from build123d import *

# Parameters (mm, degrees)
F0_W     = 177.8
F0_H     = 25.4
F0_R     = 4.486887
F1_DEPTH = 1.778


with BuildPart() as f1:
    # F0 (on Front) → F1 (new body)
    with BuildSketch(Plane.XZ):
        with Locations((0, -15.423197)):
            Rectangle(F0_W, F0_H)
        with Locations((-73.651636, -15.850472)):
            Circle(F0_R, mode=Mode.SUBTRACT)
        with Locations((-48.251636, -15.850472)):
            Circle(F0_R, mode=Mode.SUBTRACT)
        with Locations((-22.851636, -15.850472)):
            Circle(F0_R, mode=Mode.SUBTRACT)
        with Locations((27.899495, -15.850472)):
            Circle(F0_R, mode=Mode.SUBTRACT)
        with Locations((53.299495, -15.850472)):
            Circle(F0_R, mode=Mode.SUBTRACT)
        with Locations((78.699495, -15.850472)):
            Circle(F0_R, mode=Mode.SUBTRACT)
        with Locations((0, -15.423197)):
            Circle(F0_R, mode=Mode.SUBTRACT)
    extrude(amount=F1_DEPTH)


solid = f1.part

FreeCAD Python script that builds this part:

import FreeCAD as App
import Part
import Sketcher

V = App.Vector
Q = App.Units.Quantity

doc = App.newDocument("Part")
body = doc.addObject("PartDesign::Body", "Body")

sketch1 = doc.addObject("Sketcher::SketchObject", "Sketch")
body.addObject(sketch1)
sketch1.AttachmentSupport = (doc.XZ_Plane, [""])
sketch1.MapMode = "FlatFace"
sketch1.addGeometry([
    Part.LineSegment(V(-88.9, -2.723197, 0), V(-88.9, -28.123197, 0)),
    Part.LineSegment(V(-88.9, -28.123197, 0), V(88.9, -28.123197, 0)),
    Part.LineSegment(V(88.9, -28.123197, 0), V(88.9, -2.723197, 0)),
    Part.LineSegment(V(88.9, -2.723197, 0), V(-88.9, -2.723197, 0)),
    Part.Circle(V(-73.651636, -15.850472, 0), V(0, 0, 1), 4.486887),
    Part.Circle(V(-48.251636, -15.850472, 0), V(0, 0, 1), 4.486887),
    Part.Circle(V(-22.851636, -15.850472, 0), V(0, 0, 1), 4.486887),
    Part.Circle(V(27.899495, -15.850472, 0), V(0, 0, 1), 4.486887),
    Part.Circle(V(53.299495, -15.850472, 0), V(0, 0, 1), 4.486887),
    Part.Circle(V(78.699495, -15.850472, 0), V(0, 0, 1), 4.486887),
    Part.Circle(V(0, -15.423197, 0), V(0, 0, 1), 4.486887),
], False)
sketch1.addConstraint([
    Sketcher.Constraint("Coincident", 0, 2, 1, 1),
    Sketcher.Constraint("Coincident", 1, 2, 2, 1),
    Sketcher.Constraint("Coincident", 2, 2, 3, 1),
    Sketcher.Constraint("Coincident", 3, 2, 0, 1),
    Sketcher.Constraint("Vertical", 0),
    Sketcher.Constraint("Horizontal", 1),
    Sketcher.Constraint("Vertical", 2),
    Sketcher.Constraint("Horizontal", 3),
    Sketcher.Constraint("Equal", 4, 5),
    Sketcher.Constraint("Equal", 5, 6),
    Sketcher.Constraint("Equal", 6, 7),
    Sketcher.Constraint("Equal", 7, 8),
    Sketcher.Constraint("Equal", 8, 9),
    Sketcher.Constraint("Equal", 9, 10),
    Sketcher.Constraint("PointOnObject", 10, 3, -2),
    Sketcher.Constraint("Horizontal", 4, 3, 5, 3),
    Sketcher.Constraint("Horizontal", 5, 3, 6, 3),
    Sketcher.Constraint("Horizontal", 6, 3, 7, 3),
    Sketcher.Constraint("Horizontal", 7, 3, 8, 3),
    Sketcher.Constraint("Horizontal", 8, 3, 9, 3),
    Sketcher.Constraint("DistanceX", 1, 1, 1, 2, Q("7 in")),
    Sketcher.Constraint("DistanceY", 0, 2, 0, 1, Q("1 in")),
    Sketcher.Constraint("DistanceX", 4, 3, 5, 3, Q("1 in")),
    Sketcher.Constraint("DistanceX", 5, 3, 6, 3, Q("1 in")),
    Sketcher.Constraint("DistanceX", 7, 3, 8, 3, Q("1 in")),
    Sketcher.Constraint("DistanceX", 8, 3, 9, 3, Q("1 in")),
    Sketcher.Constraint("DistanceX", 0, 2, -1, 1, Q("3.5 in")),
    Sketcher.Constraint("DistanceY", 0, 2, 10, 3, Q("0.5 in")),
    Sketcher.Constraint("Diameter", 4, Q("8.973774 mm")),
    Sketcher.Constraint("DistanceX", 6, 3, 7, 3, Q("50.751131 mm")),
    Sketcher.Constraint("DistanceX", 4, 3, -1, 1, Q("73.651636 mm")),
    Sketcher.Constraint("DistanceY", 4, 3, -1, 1, Q("15.850472 mm")),
    Sketcher.Constraint("DistanceY", 10, 3, -1, 1, Q("15.423197 mm")),
])
pad1 = doc.addObject("PartDesign::Pad", "Pad")
body.addObject(pad1)
pad1.Profile = sketch1
pad1.Length = Q("0.07 in")

doc.recompute()
